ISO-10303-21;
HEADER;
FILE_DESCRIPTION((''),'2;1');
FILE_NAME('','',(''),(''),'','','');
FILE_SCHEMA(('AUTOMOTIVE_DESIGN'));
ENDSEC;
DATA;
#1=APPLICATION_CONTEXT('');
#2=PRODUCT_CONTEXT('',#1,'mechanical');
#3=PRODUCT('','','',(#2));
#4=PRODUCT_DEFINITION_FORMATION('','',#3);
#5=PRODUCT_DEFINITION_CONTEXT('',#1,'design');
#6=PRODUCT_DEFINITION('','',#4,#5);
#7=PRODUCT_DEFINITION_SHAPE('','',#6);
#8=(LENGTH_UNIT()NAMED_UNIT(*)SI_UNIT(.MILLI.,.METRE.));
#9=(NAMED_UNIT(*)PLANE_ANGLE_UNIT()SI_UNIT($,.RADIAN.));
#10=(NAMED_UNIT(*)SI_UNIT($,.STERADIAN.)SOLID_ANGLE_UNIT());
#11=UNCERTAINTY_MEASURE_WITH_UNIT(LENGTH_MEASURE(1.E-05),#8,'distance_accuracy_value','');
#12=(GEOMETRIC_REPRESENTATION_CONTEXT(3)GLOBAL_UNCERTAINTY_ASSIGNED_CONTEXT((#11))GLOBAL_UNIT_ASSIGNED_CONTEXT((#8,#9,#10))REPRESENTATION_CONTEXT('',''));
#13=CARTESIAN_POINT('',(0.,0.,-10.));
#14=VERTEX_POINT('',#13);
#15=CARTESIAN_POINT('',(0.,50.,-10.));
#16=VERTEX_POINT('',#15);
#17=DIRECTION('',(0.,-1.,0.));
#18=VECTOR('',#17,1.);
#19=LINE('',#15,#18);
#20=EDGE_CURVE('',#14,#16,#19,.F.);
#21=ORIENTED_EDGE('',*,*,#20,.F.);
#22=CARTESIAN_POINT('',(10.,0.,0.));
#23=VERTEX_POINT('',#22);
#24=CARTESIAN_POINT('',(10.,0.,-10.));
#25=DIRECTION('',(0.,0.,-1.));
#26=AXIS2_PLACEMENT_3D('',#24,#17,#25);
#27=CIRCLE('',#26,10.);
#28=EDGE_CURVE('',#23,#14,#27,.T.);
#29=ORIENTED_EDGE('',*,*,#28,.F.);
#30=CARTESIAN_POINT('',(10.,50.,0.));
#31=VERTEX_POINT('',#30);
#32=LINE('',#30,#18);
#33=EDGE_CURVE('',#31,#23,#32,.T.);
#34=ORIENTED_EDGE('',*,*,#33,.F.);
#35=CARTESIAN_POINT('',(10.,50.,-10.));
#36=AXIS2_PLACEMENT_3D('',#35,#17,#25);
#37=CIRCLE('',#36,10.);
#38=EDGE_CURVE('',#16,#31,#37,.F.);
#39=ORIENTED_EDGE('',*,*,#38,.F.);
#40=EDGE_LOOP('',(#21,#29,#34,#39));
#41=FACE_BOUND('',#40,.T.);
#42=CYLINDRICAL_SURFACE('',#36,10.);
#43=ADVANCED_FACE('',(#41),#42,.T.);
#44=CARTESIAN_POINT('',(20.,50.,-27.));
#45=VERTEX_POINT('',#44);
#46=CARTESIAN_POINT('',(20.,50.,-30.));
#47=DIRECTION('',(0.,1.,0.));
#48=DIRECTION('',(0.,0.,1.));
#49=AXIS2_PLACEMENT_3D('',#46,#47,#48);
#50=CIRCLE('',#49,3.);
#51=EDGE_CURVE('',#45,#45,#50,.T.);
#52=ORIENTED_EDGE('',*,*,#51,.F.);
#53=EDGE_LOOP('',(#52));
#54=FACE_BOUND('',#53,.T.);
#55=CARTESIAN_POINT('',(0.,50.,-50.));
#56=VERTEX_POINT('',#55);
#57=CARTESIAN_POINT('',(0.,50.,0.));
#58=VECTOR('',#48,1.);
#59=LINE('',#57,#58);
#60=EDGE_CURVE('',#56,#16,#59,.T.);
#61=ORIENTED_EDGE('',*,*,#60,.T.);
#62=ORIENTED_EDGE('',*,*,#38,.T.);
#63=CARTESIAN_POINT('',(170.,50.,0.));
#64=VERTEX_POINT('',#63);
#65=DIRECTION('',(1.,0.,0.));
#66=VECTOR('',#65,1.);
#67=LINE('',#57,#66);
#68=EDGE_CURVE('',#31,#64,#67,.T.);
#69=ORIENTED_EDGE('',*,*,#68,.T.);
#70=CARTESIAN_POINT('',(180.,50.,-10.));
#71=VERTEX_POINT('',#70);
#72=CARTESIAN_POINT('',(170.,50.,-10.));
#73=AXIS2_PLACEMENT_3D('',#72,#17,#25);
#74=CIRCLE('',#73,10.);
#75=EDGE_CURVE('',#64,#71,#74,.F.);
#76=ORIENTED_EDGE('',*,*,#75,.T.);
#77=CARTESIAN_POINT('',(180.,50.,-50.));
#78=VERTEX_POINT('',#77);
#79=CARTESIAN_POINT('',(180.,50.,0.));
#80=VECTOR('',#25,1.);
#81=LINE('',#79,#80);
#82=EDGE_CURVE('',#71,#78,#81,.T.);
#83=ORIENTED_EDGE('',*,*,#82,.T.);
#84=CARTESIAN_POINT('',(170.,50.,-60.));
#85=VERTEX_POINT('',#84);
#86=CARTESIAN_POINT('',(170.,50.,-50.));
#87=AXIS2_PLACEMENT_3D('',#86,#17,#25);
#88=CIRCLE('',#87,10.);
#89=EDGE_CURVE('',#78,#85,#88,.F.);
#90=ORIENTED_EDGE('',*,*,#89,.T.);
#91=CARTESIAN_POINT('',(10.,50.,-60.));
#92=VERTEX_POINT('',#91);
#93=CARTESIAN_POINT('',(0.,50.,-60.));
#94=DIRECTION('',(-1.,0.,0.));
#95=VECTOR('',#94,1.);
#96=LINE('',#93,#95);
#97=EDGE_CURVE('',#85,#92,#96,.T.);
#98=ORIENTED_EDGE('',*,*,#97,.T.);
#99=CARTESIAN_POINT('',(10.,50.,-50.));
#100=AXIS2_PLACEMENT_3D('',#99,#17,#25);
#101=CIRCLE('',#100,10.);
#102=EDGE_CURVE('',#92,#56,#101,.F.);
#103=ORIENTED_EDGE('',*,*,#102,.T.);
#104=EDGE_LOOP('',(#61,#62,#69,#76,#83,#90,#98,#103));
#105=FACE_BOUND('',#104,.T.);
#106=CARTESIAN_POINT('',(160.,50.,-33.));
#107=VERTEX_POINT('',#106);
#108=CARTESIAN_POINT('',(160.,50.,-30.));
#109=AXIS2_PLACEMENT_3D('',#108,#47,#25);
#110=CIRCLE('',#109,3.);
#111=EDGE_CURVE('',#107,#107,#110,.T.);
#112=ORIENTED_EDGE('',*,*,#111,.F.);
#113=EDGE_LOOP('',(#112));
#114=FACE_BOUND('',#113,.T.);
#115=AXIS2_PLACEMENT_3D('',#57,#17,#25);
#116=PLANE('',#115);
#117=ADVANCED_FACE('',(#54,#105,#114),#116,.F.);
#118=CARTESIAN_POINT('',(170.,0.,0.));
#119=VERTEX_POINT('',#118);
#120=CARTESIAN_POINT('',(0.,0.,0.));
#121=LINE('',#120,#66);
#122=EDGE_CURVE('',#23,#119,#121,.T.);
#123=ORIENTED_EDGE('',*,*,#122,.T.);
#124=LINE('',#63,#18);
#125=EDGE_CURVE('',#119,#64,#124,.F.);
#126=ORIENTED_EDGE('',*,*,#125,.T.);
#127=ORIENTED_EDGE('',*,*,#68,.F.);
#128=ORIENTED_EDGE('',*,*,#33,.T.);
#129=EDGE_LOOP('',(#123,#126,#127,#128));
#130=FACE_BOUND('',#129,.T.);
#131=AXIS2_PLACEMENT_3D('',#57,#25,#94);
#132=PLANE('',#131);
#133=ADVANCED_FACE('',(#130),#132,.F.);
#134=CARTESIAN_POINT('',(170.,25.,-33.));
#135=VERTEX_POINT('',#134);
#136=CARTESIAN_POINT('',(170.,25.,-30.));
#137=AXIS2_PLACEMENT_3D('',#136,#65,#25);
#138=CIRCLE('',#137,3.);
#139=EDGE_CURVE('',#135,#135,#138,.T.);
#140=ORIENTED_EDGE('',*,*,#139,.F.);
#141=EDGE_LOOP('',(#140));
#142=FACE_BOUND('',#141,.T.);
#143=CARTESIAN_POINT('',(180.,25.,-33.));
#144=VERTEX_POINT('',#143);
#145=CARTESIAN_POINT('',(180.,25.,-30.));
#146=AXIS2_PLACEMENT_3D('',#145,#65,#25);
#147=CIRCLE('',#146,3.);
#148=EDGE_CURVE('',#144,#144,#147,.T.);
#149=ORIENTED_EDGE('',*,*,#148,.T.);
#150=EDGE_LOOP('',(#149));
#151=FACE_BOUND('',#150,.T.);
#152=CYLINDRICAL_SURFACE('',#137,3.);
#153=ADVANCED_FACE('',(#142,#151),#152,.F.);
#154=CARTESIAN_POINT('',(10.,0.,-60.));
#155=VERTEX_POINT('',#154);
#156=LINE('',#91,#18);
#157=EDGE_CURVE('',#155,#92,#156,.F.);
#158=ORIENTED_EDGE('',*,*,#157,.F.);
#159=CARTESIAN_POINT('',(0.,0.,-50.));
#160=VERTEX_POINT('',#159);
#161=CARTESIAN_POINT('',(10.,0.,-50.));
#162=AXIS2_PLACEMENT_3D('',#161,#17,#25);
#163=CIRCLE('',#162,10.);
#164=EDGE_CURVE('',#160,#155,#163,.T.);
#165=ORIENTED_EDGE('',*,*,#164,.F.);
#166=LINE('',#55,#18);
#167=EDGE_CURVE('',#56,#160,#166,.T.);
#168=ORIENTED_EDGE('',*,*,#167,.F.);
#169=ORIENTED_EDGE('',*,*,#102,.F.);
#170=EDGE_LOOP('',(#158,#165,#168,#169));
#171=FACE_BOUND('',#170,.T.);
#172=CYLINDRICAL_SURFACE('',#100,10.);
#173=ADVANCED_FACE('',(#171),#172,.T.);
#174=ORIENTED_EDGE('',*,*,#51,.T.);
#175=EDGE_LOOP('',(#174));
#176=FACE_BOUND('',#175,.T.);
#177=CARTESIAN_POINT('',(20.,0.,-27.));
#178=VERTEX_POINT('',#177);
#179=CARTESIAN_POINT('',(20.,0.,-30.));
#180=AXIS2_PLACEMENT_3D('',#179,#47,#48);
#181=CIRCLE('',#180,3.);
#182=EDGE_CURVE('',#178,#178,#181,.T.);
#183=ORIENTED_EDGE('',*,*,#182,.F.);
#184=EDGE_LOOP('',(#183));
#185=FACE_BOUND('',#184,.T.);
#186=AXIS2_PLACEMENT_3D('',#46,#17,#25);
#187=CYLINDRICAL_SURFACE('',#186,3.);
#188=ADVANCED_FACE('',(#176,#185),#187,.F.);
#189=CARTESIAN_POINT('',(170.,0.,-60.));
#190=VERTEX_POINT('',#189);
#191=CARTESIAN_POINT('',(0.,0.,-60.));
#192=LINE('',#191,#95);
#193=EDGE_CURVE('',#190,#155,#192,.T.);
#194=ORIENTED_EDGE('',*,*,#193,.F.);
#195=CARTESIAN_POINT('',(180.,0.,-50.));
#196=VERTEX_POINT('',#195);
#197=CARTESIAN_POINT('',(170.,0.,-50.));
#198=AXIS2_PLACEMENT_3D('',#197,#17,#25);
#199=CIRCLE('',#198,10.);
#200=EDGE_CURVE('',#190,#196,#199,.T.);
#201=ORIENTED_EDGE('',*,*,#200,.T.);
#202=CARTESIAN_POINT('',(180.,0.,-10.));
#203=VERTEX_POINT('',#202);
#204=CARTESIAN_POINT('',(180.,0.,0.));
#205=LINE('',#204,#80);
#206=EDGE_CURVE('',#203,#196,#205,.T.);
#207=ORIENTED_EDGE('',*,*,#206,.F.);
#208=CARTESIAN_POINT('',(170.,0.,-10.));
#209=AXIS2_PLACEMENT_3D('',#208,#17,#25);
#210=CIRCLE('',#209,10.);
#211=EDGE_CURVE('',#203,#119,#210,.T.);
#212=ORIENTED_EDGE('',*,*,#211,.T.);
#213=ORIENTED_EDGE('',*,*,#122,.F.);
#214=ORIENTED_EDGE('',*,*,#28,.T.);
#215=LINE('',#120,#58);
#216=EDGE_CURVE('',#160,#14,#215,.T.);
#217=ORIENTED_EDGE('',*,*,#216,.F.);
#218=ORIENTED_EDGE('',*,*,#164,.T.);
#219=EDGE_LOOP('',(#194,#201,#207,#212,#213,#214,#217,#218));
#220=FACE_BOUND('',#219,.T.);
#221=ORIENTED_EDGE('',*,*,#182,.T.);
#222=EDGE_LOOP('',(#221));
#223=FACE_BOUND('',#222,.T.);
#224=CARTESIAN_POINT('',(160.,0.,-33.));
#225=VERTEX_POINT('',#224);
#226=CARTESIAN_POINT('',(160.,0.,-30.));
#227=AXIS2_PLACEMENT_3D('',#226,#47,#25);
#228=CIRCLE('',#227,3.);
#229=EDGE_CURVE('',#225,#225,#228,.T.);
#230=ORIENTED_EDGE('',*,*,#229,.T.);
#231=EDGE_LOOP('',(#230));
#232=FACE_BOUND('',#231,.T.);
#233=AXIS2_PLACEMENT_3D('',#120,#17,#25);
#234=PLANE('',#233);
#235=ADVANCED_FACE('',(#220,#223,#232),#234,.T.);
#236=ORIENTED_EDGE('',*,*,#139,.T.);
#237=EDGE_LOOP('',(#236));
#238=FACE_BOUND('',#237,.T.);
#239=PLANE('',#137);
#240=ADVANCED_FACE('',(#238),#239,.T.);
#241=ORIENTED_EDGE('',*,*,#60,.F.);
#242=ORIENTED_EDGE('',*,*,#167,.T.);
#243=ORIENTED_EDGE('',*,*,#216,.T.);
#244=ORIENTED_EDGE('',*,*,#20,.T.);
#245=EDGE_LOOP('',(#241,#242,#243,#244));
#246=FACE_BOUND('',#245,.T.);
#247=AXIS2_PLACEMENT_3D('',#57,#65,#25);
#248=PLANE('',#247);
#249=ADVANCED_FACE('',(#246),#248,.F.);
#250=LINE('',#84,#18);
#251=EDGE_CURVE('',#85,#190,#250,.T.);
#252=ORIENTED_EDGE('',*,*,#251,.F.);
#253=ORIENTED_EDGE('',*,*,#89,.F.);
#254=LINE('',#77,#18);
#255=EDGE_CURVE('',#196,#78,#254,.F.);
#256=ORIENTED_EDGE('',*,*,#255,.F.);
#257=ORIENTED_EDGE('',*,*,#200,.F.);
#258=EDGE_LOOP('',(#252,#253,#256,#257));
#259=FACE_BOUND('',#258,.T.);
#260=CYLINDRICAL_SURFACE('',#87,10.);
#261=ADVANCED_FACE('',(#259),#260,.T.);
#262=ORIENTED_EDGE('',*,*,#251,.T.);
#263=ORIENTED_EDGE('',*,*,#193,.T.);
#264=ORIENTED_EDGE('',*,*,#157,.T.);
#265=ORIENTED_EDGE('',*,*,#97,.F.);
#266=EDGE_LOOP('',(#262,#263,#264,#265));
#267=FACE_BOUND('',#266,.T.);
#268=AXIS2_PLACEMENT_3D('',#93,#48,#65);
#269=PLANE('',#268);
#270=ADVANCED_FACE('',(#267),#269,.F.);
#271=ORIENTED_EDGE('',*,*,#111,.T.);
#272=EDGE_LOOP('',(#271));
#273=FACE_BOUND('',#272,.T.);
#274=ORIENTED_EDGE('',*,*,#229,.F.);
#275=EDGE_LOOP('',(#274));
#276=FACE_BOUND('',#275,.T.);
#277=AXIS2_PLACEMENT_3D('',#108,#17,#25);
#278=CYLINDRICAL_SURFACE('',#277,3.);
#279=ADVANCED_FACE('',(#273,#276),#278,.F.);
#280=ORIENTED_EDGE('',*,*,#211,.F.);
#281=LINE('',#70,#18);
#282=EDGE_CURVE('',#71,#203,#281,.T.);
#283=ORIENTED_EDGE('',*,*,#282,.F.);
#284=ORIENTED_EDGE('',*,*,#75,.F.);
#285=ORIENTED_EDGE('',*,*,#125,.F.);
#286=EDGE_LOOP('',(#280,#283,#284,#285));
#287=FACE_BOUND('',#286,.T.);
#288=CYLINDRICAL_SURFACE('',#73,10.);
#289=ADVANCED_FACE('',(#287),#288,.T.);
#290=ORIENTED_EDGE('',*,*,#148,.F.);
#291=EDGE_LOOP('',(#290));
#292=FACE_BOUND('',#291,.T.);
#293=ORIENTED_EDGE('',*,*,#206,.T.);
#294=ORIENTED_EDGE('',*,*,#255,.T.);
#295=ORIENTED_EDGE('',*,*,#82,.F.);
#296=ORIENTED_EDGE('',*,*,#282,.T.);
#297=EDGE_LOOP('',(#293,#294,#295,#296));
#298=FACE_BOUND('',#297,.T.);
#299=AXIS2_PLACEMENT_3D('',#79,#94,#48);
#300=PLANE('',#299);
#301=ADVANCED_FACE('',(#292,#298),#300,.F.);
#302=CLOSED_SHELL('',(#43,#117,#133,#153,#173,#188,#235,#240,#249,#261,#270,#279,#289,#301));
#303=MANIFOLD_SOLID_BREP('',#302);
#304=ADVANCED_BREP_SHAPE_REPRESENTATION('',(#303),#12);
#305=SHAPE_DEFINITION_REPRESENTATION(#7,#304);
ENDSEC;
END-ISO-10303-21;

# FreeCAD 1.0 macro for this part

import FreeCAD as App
import Part
import Sketcher
from FreeCAD import Vector


def edges_at(feature, points):
    """Names of the edges that pass closest to the given points."""
    edges = feature.Shape.Edges
    near = lambda p: min(range(len(edges)), key=lambda i: edges[i].distToShape(Part.Vertex(*p))[0])
    return sorted({f"Edge{near(p) + 1}" for p in points})

doc = App.newDocument("Part")
body = doc.addObject("PartDesign::Body", "Body")

# Sketch on XZ plane
sketch1 = doc.addObject("Sketcher::SketchObject", "Sketch")
body.addObject(sketch1)
sketch1.AttachmentSupport = (doc.XZ_Plane, [""])
sketch1.MapMode = "FlatFace"
sketch1.addGeometry([
    Part.LineSegment(Vector(0, -60, 0), Vector(0, 0, 0)),  # 0
    Part.LineSegment(Vector(0, 0, 0), Vector(180, 0, 0)),  # 1
    Part.LineSegment(Vector(180, 0, 0), Vector(180, -60, 0)),  # 2
    Part.LineSegment(Vector(180, -60, 0), Vector(0, -60, 0)),  # 3
    Part.Circle(Vector(20, -30, 0), Vector(0, 0, 1), 3),  # 4
    Part.Circle(Vector(160, -30, 0), Vector(0, 0, 1), 3),  # 5
], False)
sketch1.addConstraint([
    Sketcher.Constraint("Coincident", 0, 2, 1, 1),
    Sketcher.Constraint("Coincident", 1, 2, 2, 1),
    Sketcher.Constraint("Coincident", 2, 2, 3, 1),
    Sketcher.Constraint("Coincident", 3, 2, 0, 1),
    Sketcher.Constraint("Vertical", 0),
    Sketcher.Constraint("Horizontal", 1),
    Sketcher.Constraint("Vertical", 2),
    Sketcher.Constraint("Horizontal", 3),
    Sketcher.Constraint("Coincident", 0, 2, -1, 1),
    Sketcher.Constraint("Equal", 4, 5),
    Sketcher.Constraint("Horizontal", 4, 3, 5, 3),
    Sketcher.Constraint("Diameter", 4, 6.0),
    Sketcher.Constraint("DistanceX", 1, 1, 1, 2, 180.0),
    Sketcher.Constraint("DistanceY", 0, 1, 0, 2, 60.0),
    Sketcher.Constraint("DistanceX", -1, 1, 4, 3, 20.0),
    Sketcher.Constraint("DistanceY", 4, 3, -1, 1, 30.0),
    Sketcher.Constraint("DistanceX", -1, 1, 5, 3, 160.0),
])
pad1 = doc.addObject("PartDesign::Pad", "Pad")
body.addObject(pad1)
pad1.Profile = sketch1
pad1.Length = 50
pad1.Reversed = True

# Sketch on YZ plane
sketch2 = doc.addObject("Sketcher::SketchObject", "Sketch001")
body.addObject(sketch2)
sketch2.AttachmentSupport = (doc.YZ_Plane, [""])
sketch2.MapMode = "FlatFace"
sketch2.AttachmentOffset = App.Placement(Vector(0, 0, 180), App.Rotation())
sketch2.addGeometry(Part.Circle(Vector(25, -30, 0), Vector(0, 0, 1), 3), False)
sketch2.addConstraint([
    Sketcher.Constraint("Diameter", 0, 6.0),
    Sketcher.Constraint("DistanceX", -1, 1, 0, 3, 25.0),
    Sketcher.Constraint("DistanceY", 0, 3, -1, 1, 30.0),
])
pocket1 = doc.addObject("PartDesign::Pocket", "Pocket")
body.addObject(pocket1)
pocket1.Profile = sketch2
pocket1.Length = 10
doc.recompute()

fillet = doc.addObject("PartDesign::Fillet", "Fillet")
body.addObject(fillet)
fillet.Base = (pocket1, edges_at(pocket1, [
    (0, 25, -60),
    (180, 25, -60),
    (180, 25, 0),
    (0, 25, 0),
]))
fillet.Radius = 10

doc.recompute()
